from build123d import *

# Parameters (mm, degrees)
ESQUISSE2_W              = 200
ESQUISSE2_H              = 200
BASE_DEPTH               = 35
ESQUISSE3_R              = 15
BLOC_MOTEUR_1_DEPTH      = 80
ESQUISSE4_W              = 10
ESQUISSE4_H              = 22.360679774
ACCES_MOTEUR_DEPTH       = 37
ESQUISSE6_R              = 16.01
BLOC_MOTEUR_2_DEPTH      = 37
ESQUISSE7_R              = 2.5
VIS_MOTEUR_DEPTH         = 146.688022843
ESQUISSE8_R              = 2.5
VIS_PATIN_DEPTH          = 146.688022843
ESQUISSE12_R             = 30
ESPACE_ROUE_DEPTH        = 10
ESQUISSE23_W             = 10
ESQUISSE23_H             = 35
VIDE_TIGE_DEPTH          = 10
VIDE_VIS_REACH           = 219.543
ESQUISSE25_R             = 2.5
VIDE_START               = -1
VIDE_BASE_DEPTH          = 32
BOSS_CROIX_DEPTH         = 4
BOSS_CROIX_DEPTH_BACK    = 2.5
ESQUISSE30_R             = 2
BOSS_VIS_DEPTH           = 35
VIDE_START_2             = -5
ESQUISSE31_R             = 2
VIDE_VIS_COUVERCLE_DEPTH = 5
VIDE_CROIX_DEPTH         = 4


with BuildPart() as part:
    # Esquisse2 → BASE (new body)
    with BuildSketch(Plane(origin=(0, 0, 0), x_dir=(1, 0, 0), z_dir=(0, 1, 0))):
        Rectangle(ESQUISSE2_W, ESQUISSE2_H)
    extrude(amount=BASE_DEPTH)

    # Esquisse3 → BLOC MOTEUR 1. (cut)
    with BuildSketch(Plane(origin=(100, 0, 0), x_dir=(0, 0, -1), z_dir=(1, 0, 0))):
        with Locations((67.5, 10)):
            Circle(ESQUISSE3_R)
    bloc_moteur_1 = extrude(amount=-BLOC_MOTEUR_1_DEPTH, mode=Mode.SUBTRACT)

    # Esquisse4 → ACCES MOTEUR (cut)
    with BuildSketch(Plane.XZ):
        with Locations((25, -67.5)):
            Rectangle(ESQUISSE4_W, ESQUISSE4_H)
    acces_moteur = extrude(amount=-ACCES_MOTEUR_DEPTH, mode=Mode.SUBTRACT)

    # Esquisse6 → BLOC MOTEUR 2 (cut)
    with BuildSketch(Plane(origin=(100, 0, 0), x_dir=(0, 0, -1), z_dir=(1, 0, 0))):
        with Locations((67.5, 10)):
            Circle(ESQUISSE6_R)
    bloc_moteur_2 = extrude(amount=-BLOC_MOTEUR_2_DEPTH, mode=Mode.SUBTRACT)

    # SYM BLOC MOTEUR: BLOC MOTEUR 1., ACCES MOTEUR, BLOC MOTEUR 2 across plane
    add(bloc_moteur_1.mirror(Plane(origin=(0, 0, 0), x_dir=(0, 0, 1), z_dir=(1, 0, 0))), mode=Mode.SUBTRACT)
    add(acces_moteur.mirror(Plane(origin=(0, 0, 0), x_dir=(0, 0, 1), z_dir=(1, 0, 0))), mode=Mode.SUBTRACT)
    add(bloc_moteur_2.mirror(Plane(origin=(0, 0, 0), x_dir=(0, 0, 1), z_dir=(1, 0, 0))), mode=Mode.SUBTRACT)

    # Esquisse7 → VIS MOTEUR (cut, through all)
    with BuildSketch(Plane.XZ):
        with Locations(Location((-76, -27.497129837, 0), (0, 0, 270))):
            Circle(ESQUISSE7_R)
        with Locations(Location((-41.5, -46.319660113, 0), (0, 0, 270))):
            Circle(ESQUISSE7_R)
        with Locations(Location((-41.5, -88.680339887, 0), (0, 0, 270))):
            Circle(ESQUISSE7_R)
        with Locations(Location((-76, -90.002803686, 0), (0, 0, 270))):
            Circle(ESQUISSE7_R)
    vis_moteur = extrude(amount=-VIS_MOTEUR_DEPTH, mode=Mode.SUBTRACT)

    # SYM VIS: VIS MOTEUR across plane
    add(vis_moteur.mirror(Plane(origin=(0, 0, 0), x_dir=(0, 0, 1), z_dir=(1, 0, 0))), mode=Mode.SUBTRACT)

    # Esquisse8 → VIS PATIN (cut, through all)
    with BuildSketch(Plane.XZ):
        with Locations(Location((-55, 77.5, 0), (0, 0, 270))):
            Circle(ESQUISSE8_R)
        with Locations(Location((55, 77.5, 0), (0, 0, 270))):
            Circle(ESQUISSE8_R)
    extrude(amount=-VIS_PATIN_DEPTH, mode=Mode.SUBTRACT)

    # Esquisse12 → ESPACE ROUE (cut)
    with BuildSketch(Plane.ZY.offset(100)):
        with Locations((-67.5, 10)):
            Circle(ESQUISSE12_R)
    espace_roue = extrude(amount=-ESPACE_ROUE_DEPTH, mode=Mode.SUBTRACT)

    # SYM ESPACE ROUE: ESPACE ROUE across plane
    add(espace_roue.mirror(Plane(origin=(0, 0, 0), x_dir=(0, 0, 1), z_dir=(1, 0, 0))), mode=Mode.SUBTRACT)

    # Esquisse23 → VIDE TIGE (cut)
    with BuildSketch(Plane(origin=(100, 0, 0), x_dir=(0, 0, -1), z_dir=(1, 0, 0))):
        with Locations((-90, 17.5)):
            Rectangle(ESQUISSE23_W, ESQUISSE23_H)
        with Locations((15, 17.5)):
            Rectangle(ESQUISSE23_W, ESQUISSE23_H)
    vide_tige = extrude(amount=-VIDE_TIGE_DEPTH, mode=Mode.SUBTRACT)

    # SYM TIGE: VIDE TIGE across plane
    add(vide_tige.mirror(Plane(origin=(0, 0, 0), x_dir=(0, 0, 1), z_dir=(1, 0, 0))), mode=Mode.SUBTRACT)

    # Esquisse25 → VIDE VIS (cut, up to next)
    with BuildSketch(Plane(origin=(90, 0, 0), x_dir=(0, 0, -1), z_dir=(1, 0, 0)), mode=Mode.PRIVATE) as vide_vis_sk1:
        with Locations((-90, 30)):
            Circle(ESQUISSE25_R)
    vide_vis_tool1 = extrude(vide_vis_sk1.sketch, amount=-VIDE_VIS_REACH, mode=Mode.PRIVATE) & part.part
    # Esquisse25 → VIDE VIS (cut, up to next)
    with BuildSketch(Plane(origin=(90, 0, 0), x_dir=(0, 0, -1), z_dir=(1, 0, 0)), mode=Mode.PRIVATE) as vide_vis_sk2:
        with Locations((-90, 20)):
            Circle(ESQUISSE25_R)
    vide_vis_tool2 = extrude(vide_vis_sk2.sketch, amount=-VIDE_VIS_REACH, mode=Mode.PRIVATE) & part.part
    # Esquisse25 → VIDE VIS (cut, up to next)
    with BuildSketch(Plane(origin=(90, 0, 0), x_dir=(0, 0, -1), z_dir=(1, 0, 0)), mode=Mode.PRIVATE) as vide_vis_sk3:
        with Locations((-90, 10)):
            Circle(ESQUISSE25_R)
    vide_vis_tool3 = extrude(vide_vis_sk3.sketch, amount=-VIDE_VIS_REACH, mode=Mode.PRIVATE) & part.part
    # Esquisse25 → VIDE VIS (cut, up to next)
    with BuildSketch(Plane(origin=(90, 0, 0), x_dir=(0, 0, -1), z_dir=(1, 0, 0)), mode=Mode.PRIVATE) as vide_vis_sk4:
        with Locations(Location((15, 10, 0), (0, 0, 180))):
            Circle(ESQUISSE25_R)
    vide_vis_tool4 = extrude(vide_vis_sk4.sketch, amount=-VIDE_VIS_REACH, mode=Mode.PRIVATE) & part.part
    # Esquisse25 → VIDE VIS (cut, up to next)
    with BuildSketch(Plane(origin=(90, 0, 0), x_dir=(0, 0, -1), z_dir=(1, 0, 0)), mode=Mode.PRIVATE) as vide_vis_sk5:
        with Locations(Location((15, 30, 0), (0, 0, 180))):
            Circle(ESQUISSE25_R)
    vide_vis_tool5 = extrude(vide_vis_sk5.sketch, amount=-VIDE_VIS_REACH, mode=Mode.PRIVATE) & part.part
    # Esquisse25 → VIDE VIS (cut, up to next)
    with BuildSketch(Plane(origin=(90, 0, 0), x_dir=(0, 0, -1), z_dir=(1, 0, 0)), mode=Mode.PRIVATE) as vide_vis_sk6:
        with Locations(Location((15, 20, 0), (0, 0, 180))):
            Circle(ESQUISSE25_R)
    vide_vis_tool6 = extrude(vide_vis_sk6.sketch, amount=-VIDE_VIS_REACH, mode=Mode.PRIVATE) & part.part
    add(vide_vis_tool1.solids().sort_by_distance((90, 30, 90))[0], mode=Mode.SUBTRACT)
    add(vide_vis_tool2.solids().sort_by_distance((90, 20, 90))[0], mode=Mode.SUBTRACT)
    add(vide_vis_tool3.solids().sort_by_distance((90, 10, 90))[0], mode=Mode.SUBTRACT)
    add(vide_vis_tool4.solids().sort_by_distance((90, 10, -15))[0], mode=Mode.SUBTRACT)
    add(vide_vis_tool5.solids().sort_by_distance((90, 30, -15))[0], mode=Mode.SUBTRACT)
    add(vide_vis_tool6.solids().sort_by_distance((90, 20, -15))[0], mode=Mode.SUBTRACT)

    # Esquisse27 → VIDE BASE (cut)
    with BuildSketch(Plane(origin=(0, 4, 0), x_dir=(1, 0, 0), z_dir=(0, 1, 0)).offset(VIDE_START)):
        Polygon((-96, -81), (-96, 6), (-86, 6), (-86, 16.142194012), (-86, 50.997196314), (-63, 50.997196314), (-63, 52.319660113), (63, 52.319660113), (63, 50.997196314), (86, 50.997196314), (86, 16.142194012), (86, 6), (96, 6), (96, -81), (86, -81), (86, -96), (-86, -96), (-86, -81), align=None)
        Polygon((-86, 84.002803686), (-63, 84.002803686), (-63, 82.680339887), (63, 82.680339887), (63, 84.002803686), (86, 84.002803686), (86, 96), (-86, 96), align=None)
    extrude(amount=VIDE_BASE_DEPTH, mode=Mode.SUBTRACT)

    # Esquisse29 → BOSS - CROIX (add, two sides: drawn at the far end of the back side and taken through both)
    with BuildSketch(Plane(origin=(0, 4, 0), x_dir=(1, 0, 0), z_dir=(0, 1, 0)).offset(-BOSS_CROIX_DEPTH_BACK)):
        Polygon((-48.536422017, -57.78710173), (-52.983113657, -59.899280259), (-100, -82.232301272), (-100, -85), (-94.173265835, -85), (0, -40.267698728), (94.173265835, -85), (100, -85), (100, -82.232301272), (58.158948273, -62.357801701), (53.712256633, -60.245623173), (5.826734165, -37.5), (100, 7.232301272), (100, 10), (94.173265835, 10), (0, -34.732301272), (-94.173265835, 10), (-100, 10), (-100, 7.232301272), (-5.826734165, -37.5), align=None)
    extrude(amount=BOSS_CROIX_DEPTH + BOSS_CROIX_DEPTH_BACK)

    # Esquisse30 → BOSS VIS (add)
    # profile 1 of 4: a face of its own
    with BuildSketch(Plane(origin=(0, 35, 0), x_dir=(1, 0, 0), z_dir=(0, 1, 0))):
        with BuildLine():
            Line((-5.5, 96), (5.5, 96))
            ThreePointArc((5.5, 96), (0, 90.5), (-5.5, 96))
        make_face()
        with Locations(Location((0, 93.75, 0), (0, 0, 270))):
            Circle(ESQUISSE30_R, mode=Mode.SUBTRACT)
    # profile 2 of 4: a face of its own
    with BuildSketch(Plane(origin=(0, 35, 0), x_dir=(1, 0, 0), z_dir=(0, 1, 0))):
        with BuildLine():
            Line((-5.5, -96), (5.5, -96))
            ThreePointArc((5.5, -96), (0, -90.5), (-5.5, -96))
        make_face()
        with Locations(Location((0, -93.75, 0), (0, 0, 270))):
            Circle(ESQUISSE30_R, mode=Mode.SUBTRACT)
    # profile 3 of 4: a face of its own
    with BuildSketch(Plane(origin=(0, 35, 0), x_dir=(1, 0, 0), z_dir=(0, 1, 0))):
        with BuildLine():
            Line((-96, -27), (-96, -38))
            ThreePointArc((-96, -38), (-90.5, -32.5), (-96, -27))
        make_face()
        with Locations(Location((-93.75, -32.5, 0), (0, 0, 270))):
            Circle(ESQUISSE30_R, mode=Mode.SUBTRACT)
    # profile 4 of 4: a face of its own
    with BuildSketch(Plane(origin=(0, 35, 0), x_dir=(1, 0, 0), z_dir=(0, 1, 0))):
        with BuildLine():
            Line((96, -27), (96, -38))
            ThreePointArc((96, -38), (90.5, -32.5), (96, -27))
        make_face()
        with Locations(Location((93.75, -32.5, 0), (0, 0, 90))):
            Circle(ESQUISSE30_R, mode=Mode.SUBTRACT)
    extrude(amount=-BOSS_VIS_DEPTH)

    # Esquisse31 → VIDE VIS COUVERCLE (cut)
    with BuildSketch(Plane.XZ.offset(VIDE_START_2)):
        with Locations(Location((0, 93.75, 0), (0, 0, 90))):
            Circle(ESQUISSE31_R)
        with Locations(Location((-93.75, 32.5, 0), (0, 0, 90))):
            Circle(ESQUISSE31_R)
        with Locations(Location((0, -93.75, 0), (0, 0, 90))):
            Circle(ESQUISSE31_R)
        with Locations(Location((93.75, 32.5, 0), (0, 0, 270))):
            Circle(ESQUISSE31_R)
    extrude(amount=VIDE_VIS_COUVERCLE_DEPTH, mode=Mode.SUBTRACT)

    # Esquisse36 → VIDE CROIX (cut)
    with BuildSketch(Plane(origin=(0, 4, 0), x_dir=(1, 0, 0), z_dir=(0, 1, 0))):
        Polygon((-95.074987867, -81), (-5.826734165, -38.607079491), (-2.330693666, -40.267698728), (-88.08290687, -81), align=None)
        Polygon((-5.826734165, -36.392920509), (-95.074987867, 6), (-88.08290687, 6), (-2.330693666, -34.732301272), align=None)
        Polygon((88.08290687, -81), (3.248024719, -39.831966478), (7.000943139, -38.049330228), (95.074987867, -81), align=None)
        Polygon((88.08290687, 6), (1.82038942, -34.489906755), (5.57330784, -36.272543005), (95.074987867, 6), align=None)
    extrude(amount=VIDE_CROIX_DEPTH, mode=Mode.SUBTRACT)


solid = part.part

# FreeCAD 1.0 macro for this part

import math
import FreeCAD as App
import Part
import Sketcher
Q = App.Units.Quantity


def add_polygon(sketch, points):
    """Adds a closed chain of lines whose ends are joined by coincident constraints."""
    first, n = sketch.GeometryCount, len(points)
    for a, b in zip(points, points[1:] + points[:1]):
        sketch.addGeometry(Part.LineSegment(App.Vector(*a, 0), App.Vector(*b, 0)), False)
    for i in range(n):
        sketch.addConstraint(Sketcher.Constraint("Coincident", first + i, 2, first + (i + 1) % n, 1))

doc = App.newDocument("Part")
body = doc.addObject("PartDesign::Body", "Body")

# Sketch on XZ plane
sketch1 = body.newObject("Sketcher::SketchObject", "Sketch")
sketch1.AttachmentSupport = (doc.getObject("XZ_Plane"), [""])
sketch1.MapMode = "FlatFace"
add_polygon(sketch1, [(-100, -100), (-100, 100), (100, 100), (100, -100)])  # lines 0-3
sketch1.addConstraint(Sketcher.Constraint("Vertical", 0))
sketch1.addConstraint(Sketcher.Constraint("Horizontal", 1))
sketch1.addConstraint(Sketcher.Constraint("Vertical", 2))
sketch1.addConstraint(Sketcher.Constraint("Horizontal", 3))
sketch1.addConstraint(Sketcher.Constraint("Symmetric", 0, 2, 2, 2, -1, 1))
sketch1.addConstraint(Sketcher.Constraint("Equal", 3, 0))
sketch1.addConstraint(Sketcher.Constraint("DistanceX", 1, 1, 1, 2, Q("200 mm")))
pad1 = body.newObject("PartDesign::Pad", "Pad")
pad1.Profile = sketch1
pad1.Length = 35
pad1.Reversed = True

# Sketch on YZ plane
sketch2 = body.newObject("Sketcher::SketchObject", "Sketch001")
sketch2.AttachmentSupport = (doc.getObject("YZ_Plane"), [""])
sketch2.MapMode = "FlatFace"
sketch2.AttachmentOffset = App.Placement(App.Vector(0, 0, 100), App.Rotation())
sketch2.addGeometry(Part.Circle(App.Vector(10, -68, 0), App.Vector(0, 0, 1), 15), False)
sketch2.addConstraint(Sketcher.Constraint("Diameter", 0, Q("30 mm")))
sketch2.addConstraint(Sketcher.Constraint("DistanceX", -1, 1, 0, 3, Q("10 mm")))
sketch2.addConstraint(Sketcher.Constraint("DistanceY", 0, 3, -1, 1, Q("67.5 mm")))
pocket1 = body.newObject("PartDesign::Pocket", "Pocket")
pocket1.Profile = sketch2
pocket1.Length = 80

# Sketch on XZ plane
sketch3 = body.newObject("Sketcher::SketchObject", "Sketch002")
sketch3.AttachmentSupport = (doc.getObject("XZ_Plane"), [""])
sketch3.MapMode = "FlatFace"
add_polygon(sketch3, [(20, -56), (20, -79), (30, -79), (30, -56)])  # lines 0-3
sketch3.addConstraint(Sketcher.Constraint("Vertical", 0))
sketch3.addConstraint(Sketcher.Constraint("Horizontal", 1))
sketch3.addConstraint(Sketcher.Constraint("Vertical", 2))
sketch3.addConstraint(Sketcher.Constraint("Horizontal", 3))
sketch3.addConstraint(Sketcher.Constraint("DistanceX", 1, 1, 1, 2, Q("10 mm")))
sketch3.addConstraint(Sketcher.Constraint("DistanceX", -1, 1, 0, 2, Q("20 mm")))
sketch3.addConstraint(Sketcher.Constraint("DistanceY", 0, 2, 0, 1, Q("22.36068 mm")))
sketch3.addConstraint(Sketcher.Constraint("DistanceY", 0, 2, -1, 1, Q("78.68034 mm")))
pocket2 = body.newObject("PartDesign::Pocket", "Pocket001")
pocket2.Profile = sketch3
pocket2.Length = 37

# Sketch on YZ plane
sketch4 = body.newObject("Sketcher::SketchObject", "Sketch003")
sketch4.AttachmentSupport = (doc.getObject("YZ_Plane"), [""])
sketch4.MapMode = "FlatFace"
sketch4.AttachmentOffset = App.Placement(App.Vector(0, 0, 100), App.Rotation())
sketch4.addGeometry(Part.Circle(App.Vector(10, -68, 0), App.Vector(0, 0, 1), 16), False)
sketch4.addConstraint(Sketcher.Constraint("Diameter", 0, Q("32.02 mm")))
sketch4.addConstraint(Sketcher.Constraint("DistanceX", -1, 1, 0, 3, Q("10 mm")))
sketch4.addConstraint(Sketcher.Constraint("DistanceY", 0, 3, -1, 1, Q("67.5 mm")))
pocket3 = body.newObject("PartDesign::Pocket", "Pocket002")
pocket3.Profile = sketch4
pocket3.Length = 37
doc.recompute()

mirrored = body.newObject("PartDesign::Mirrored", "Mirrored")
mirrored.Originals = [pocket1, pocket2, pocket3]
mirrored.MirrorPlane = (doc.getObject("YZ_Plane"), [""])
body.Tip = mirrored

# Sketch on XZ plane
sketch5 = body.newObject("Sketcher::SketchObject", "Sketch004")
sketch5.AttachmentSupport = (doc.getObject("XZ_Plane"), [""])
sketch5.MapMode = "FlatFace"
sketch5.addGeometry(Part.Circle(App.Vector(-76, -27.5, 0), App.Vector(0, 0, 1), 2.5), False)
sketch5.addGeometry(Part.Circle(App.Vector(-41.5, -46.3, 0), App.Vector(0, 0, 1), 2.5), False)
sketch5.addGeometry(Part.Circle(App.Vector(-41.5, -88.7, 0), App.Vector(0, 0, 1), 2.5), False)
sketch5.addGeometry(Part.Circle(App.Vector(-76, -90, 0), App.Vector(0, 0, 1), 2.5), False)
sketch5.addConstraint(Sketcher.Constraint("Equal", 0, 1))
sketch5.addConstraint(Sketcher.Constraint("Equal", 1, 2))
sketch5.addConstraint(Sketcher.Constraint("Equal", 2, 3))
sketch5.addConstraint(Sketcher.Constraint("Vertical", 1, 3, 2, 3))
sketch5.addConstraint(Sketcher.Constraint("Vertical", 0, 3, 3, 3))
sketch5.addConstraint(Sketcher.Constraint("Diameter", 0, Q("5 mm")))
sketch5.addConstraint(Sketcher.Constraint("DistanceX", 0, 3, -1, 1, Q("76 mm")))
sketch5.addConstraint(Sketcher.Constraint("DistanceX", 1, 3, -1, 1, Q("41.5 mm")))
sketch5.addConstraint(Sketcher.Constraint("DistanceY", 0, 3, -1, 1, Q("27.49713 mm")))
sketch5.addConstraint(Sketcher.Constraint("DistanceY", 1, 3, -1, 1, Q("46.31966 mm")))
sketch5.addConstraint(Sketcher.Constraint("DistanceY", 2, 3, -1, 1, Q("88.68034 mm")))
sketch5.addConstraint(Sketcher.Constraint("DistanceY", 3, 3, -1, 1, Q("90.002804 mm")))
pocket4 = body.newObject("PartDesign::Pocket", "Pocket003")
pocket4.Profile = sketch5
pocket4.Type = "ThroughAll"
doc.recompute()

mirrored2 = body.newObject("PartDesign::Mirrored", "Mirrored001")
mirrored2.Originals = [pocket4]
mirrored2.MirrorPlane = (doc.getObject("YZ_Plane"), [""])
body.Tip = mirrored2

# Sketch on XZ plane
sketch6 = body.newObject("Sketcher::SketchObject", "Sketch005")
sketch6.AttachmentSupport = (doc.getObject("XZ_Plane"), [""])
sketch6.MapMode = "FlatFace"
sketch6.addGeometry(Part.Circle(App.Vector(-55, 77.5, 0), App.Vector(0, 0, 1), 2.5), False)
sketch6.addGeometry(Part.Circle(App.Vector(55, 77.5, 0), App.Vector(0, 0, 1), 2.5), False)
sketch6.addConstraint(Sketcher.Constraint("Equal", 0, 1))
sketch6.addConstraint(Sketcher.Constraint("Symmetric", 0, 3, 1, 3, -2))
sketch6.addConstraint(Sketcher.Constraint("Diameter", 0, Q("5 mm")))
sketch6.addConstraint(Sketcher.Constraint("DistanceX", 0, 3, -1, 1, Q("55 mm")))
sketch6.addConstraint(Sketcher.Constraint("DistanceY", -1, 1, 0, 3, Q("77.5 mm")))
pocket5 = body.newObject("PartDesign::Pocket", "Pocket004")
pocket5.Profile = sketch6
pocket5.Type = "ThroughAll"

# Sketch on YZ plane
sketch7 = body.newObject("Sketcher::SketchObject", "Sketch006")
sketch7.AttachmentSupport = (doc.getObject("YZ_Plane"), [""])
sketch7.MapMode = "FlatFace"
sketch7.AttachmentOffset = App.Placement(App.Vector(0, 0, -100), App.Rotation())
sketch7.addGeometry(Part.Circle(App.Vector(10, -68, 0), App.Vector(0, 0, 1), 30), False)
sketch7.addConstraint(Sketcher.Constraint("Diameter", 0, Q("60 mm")))
sketch7.addConstraint(Sketcher.Constraint("DistanceX", -1, 1, 0, 3, Q("10 mm")))
sketch7.addConstraint(Sketcher.Constraint("DistanceY", 0, 3, -1, 1, Q("67.5 mm")))
pocket6 = body.newObject("PartDesign::Pocket", "Pocket005")
pocket6.Profile = sketch7
pocket6.Length = 10
pocket6.Reversed = True
doc.recompute()

mirrored3 = body.newObject("PartDesign::Mirrored", "Mirrored002")
mirrored3.Originals = [pocket6]
mirrored3.MirrorPlane = (doc.getObject("YZ_Plane"), [""])
body.Tip = mirrored3

# Sketch on YZ plane
sketch8 = body.newObject("Sketcher::SketchObject", "Sketch007")
sketch8.AttachmentSupport = (doc.getObject("YZ_Plane"), [""])
sketch8.MapMode = "FlatFace"
sketch8.AttachmentOffset = App.Placement(App.Vector(0, 0, 100), App.Rotation())
add_polygon(sketch8, [(35, 95), (0, 95), (0, 85), (35, 85)])  # lines 0-3
add_polygon(sketch8, [(35, -10), (0, -10), (0, -20), (35, -20)])  # lines 4-7
sketch8.addConstraint(Sketcher.Constraint("Horizontal", 0))
sketch8.addConstraint(Sketcher.Constraint("Vertical", 1))
sketch8.addConstraint(Sketcher.Constraint("Horizontal", 2))
sketch8.addConstraint(Sketcher.Constraint("Vertical", 3))
sketch8.addConstraint(Sketcher.Constraint("Horizontal", 4))
sketch8.addConstraint(Sketcher.Constraint("Vertical", 5))
sketch8.addConstraint(Sketcher.Constraint("Horizontal", 6))
sketch8.addConstraint(Sketcher.Constraint("Vertical", 7))
sketch8.addConstraint(Sketcher.Constraint("PointOnObject", 0, 2, -2))
sketch8.addConstraint(Sketcher.Constraint("PointOnObject", 4, 2, -2))
sketch8.addConstraint(Sketcher.Constraint("Vertical", 3, 2, 6, 2))
sketch8.addConstraint(Sketcher.Constraint("Equal", 3, 5))
sketch8.addConstraint(Sketcher.Constraint("DistanceX", 0, 2, 0, 1, Q("35 mm")))
sketch8.addConstraint(Sketcher.Constraint("DistanceY", 1, 2, 1, 1, Q("10 mm")))
sketch8.addConstraint(Sketcher.Constraint("DistanceY", -1, 1, 0, 2, Q("95 mm")))
sketch8.addConstraint(Sketcher.Constraint("DistanceY", 4, 2, -1, 1, Q("10 mm")))
pocket7 = body.newObject("PartDesign::Pocket", "Pocket006")
pocket7.Profile = sketch8
pocket7.Length = 10
doc.recompute()

mirrored4 = body.newObject("PartDesign::Mirrored", "Mirrored003")
mirrored4.Originals = [pocket7]
mirrored4.MirrorPlane = (doc.getObject("YZ_Plane"), [""])
body.Tip = mirrored4

# Sketch on YZ plane
sketch9 = body.newObject("Sketcher::SketchObject", "Sketch008")
sketch9.AttachmentSupport = (doc.getObject("YZ_Plane"), [""])
sketch9.MapMode = "FlatFace"
sketch9.AttachmentOffset = App.Placement(App.Vector(0, 0, 90), App.Rotation())
sketch9.addGeometry(Part.Circle(App.Vector(30, 90, 0), App.Vector(0, 0, 1), 2.5), False)
sketch9.addConstraint(Sketcher.Constraint("Diameter", 0, Q("5 mm")))
sketch9.addConstraint(Sketcher.Constraint("DistanceX", -1, 1, 0, 3, Q("30 mm")))
sketch9.addConstraint(Sketcher.Constraint("DistanceY", -1, 1, 0, 3, Q("90 mm")))
pocket8 = body.newObject("PartDesign::Pocket", "Pocket007")
pocket8.Profile = sketch9
pocket8.Type = "UpToFirst"

# Sketch on YZ plane
sketch10 = body.newObject("Sketcher::SketchObject", "Sketch009")
sketch10.AttachmentSupport = (doc.getObject("YZ_Plane"), [""])
sketch10.MapMode = "FlatFace"
sketch10.AttachmentOffset = App.Placement(App.Vector(0, 0, 90), App.Rotation())
sketch10.addGeometry(Part.Circle(App.Vector(20, 90, 0), App.Vector(0, 0, 1), 2.5), False)
sketch10.addConstraint(Sketcher.Constraint("Diameter", 0, Q("5 mm")))
sketch10.addConstraint(Sketcher.Constraint("DistanceX", -1, 1, 0, 3, Q("20 mm")))
sketch10.addConstraint(Sketcher.Constraint("DistanceY", -1, 1, 0, 3, Q("90 mm")))
pocket9 = body.newObject("PartDesign::Pocket", "Pocket008")
pocket9.Profile = sketch10
pocket9.Type = "UpToFirst"

# Sketch on YZ plane
sketch11 = body.newObject("Sketcher::SketchObject", "Sketch010")
sketch11.AttachmentSupport = (doc.getObject("YZ_Plane"), [""])
sketch11.MapMode = "FlatFace"
sketch11.AttachmentOffset = App.Placement(App.Vector(0, 0, 90), App.Rotation())
sketch11.addGeometry(Part.Circle(App.Vector(10, 90, 0), App.Vector(0, 0, 1), 2.5), False)
sketch11.addConstraint(Sketcher.Constraint("Diameter", 0, Q("5 mm")))
sketch11.addConstraint(Sketcher.Constraint("DistanceX", -1, 1, 0, 3, Q("10 mm")))
sketch11.addConstraint(Sketcher.Constraint("DistanceY", -1, 1, 0, 3, Q("90 mm")))
pocket10 = body.newObject("PartDesign::Pocket", "Pocket009")
pocket10.Profile = sketch11
pocket10.Type = "UpToFirst"

# Sketch on YZ plane
sketch12 = body.newObject("Sketcher::SketchObject", "Sketch011")
sketch12.AttachmentSupport = (doc.getObject("YZ_Plane"), [""])
sketch12.MapMode = "FlatFace"
sketch12.AttachmentOffset = App.Placement(App.Vector(0, 0, 90), App.Rotation())
sketch12.addGeometry(Part.Circle(App.Vector(10, -15, 0), App.Vector(0, 0, 1), 2.5), False)
sketch12.addConstraint(Sketcher.Constraint("Diameter", 0, Q("5 mm")))
sketch12.addConstraint(Sketcher.Constraint("DistanceX", -1, 1, 0, 3, Q("10 mm")))
sketch12.addConstraint(Sketcher.Constraint("DistanceY", 0, 3, -1, 1, Q("15 mm")))
pocket11 = body.newObject("PartDesign::Pocket", "Pocket010")
pocket11.Profile = sketch12
pocket11.Type = "UpToFirst"

# Sketch on YZ plane
sketch13 = body.newObject("Sketcher::SketchObject", "Sketch012")
sketch13.AttachmentSupport = (doc.getObject("YZ_Plane"), [""])
sketch13.MapMode = "FlatFace"
sketch13.AttachmentOffset = App.Placement(App.Vector(0, 0, 90), App.Rotation())
sketch13.addGeometry(Part.Circle(App.Vector(30, -15, 0), App.Vector(0, 0, 1), 2.5), False)
sketch13.addConstraint(Sketcher.Constraint("Diameter", 0, Q("5 mm")))
sketch13.addConstraint(Sketcher.Constraint("DistanceX", -1, 1, 0, 3, Q("30 mm")))
sketch13.addConstraint(Sketcher.Constraint("DistanceY", 0, 3, -1, 1, Q("15 mm")))
pocket12 = body.newObject("PartDesign::Pocket", "Pocket011")
pocket12.Profile = sketch13
pocket12.Type = "UpToFirst"

# Sketch on YZ plane
sketch14 = body.newObject("Sketcher::SketchObject", "Sketch013")
sketch14.AttachmentSupport = (doc.getObject("YZ_Plane"), [""])
sketch14.MapMode = "FlatFace"
sketch14.AttachmentOffset = App.Placement(App.Vector(0, 0, 90), App.Rotation())
sketch14.addGeometry(Part.Circle(App.Vector(20, -15, 0), App.Vector(0, 0, 1), 2.5), False)
sketch14.addConstraint(Sketcher.Constraint("Diameter", 0, Q("5 mm")))
sketch14.addConstraint(Sketcher.Constraint("DistanceX", -1, 1, 0, 3, Q("20 mm")))
sketch14.addConstraint(Sketcher.Constraint("DistanceY", 0, 3, -1, 1, Q("15 mm")))
pocket13 = body.newObject("PartDesign::Pocket", "Pocket012")
pocket13.Profile = sketch14
pocket13.Type = "UpToFirst"

# Sketch on XZ plane
sketch15 = body.newObject("Sketcher::SketchObject", "Sketch014")
sketch15.AttachmentSupport = (doc.getObject("XZ_Plane"), [""])
sketch15.MapMode = "FlatFace"
sketch15.AttachmentOffset = App.Placement(App.Vector(0, 0, -3), App.Rotation())
add_polygon(sketch15, [(-96, -6), (-96, 81), (-86, 81), (-86, 96), (86, 96), (86, 81), (96, 81), (96, -6), (86, -6), (86, -51), (63, -51), (63, -52.3), (-63, -52.3), (-63, -51), (-86, -51), (-86, -6)])  # lines 0-15
add_polygon(sketch15, [(-86, -84), (-63, -84), (-63, -82.7), (63, -82.7), (63, -84), (86, -84), (86, -96), (-86, -96)])  # lines 16-23
sketch15.addConstraint(Sketcher.Constraint("Vertical", 0))
sketch15.addConstraint(Sketcher.Constraint("Horizontal", 1))
sketch15.addConstraint(Sketcher.Constraint("Vertical", 2))
sketch15.addConstraint(Sketcher.Constraint("Horizontal", 3))
sketch15.addConstraint(Sketcher.Constraint("Vertical", 4))
sketch15.addConstraint(Sketcher.Constraint("Horizontal", 5))
sketch15.addConstraint(Sketcher.Constraint("Vertical", 6))
sketch15.addConstraint(Sketcher.Constraint("Horizontal", 7))
sketch15.addConstraint(Sketcher.Constraint("Vertical", 8))
sketch15.addConstraint(Sketcher.Constraint("Horizontal", 9))
sketch15.addConstraint(Sketcher.Constraint("Vertical", 10))
sketch15.addConstraint(Sketcher.Constraint("Horizontal", 11))
sketch15.addConstraint(Sketcher.Constraint("Vertical", 12))
sketch15.addConstraint(Sketcher.Constraint("Horizontal", 13))
sketch15.addConstraint(Sketcher.Constraint("Vertical", 14))
sketch15.addConstraint(Sketcher.Constraint("Horizontal", 15))
sketch15.addConstraint(Sketcher.Constraint("Horizontal", 16))
sketch15.addConstraint(Sketcher.Constraint("Vertical", 17))
sketch15.addConstraint(Sketcher.Constraint("Horizontal", 18))
sketch15.addConstraint(Sketcher.Constraint("Vertical", 19))
sketch15.addConstraint(Sketcher.Constraint("Horizontal", 20))
sketch15.addConstraint(Sketcher.Constraint("Vertical", 21))
sketch15.addConstraint(Sketcher.Constraint("Horizontal", 22))
sketch15.addConstraint(Sketcher.Constraint("Vertical", 23))
sketch15.addConstraint(Sketcher.Constraint("Symmetric", 2, 2, 21, 2, -1, 1))
sketch15.addConstraint(Sketcher.Constraint("Symmetric", 1, 2, 4, 2, -2))
sketch15.addConstraint(Sketcher.Constraint("Symmetric", 9, 2, 12, 2, -2))
sketch15.addConstraint(Sketcher.Constraint("Symmetric", 7, 2, 14, 2, -2))
sketch15.addConstraint(Sketcher.Constraint("Symmetric", 16, 2, 19, 2, -2))
sketch15.addConstraint(Sketcher.Constraint("Vertical", 4, 2, 7, 2))
sketch15.addConstraint(Sketcher.Constraint("Vertical", 12, 2, 16, 2))
sketch15.addConstraint(Sketcher.Constraint("Vertical", 14, 2, 22, 2))
sketch15.addConstraint(Sketcher.Constraint("Equal", 1, 5))
sketch15.addConstraint(Sketcher.Constraint("Equal", 12, 17))
sketch15.addConstraint(Sketcher.Constraint("DistanceX", 1, 1, 1, 2, Q("10 mm")))
sketch15.addConstraint(Sketcher.Constraint("DistanceX", 3, 1, 3, 2, Q("172 mm")))
sketch15.addConstraint(Sketcher.Constraint("DistanceX", 9, 2, 9, 1, Q("23 mm")))
sketch15.addConstraint(Sketcher.Constraint("DistanceY", 0, 1, 0, 2, Q("87 mm")))
sketch15.addConstraint(Sketcher.Constraint("DistanceY", 2, 1, 2, 2, Q("15 mm")))
sketch15.addConstraint(Sketcher.Constraint("DistanceY", -1, 1, 0, 2, Q("81 mm")))
sketch15.addConstraint(Sketcher.Constraint("DistanceY", 8, 2, 8, 1, Q("44.997196 mm")))
sketch15.addConstraint(Sketcher.Constraint("DistanceY", 10, 2, 10, 1, Q("1.322464 mm")))
sketch15.addConstraint(Sketcher.Constraint("DistanceY", 21, 2, 21, 1, Q("11.997196 mm")))
pocket14 = body.newObject("PartDesign::Pocket", "Pocket013")
pocket14.Profile = sketch15
pocket14.Length = 32

# Sketch on XZ plane
sketch16 = body.newObject("Sketcher::SketchObject", "Sketch015")
sketch16.AttachmentSupport = (doc.getObject("XZ_Plane"), [""])
sketch16.MapMode = "FlatFace"
sketch16.AttachmentOffset = App.Placement(App.Vector(0, 0, -4), App.Rotation())
add_polygon(sketch16, [(-48.5, 57.8), (-53, 59.9), (-100, 82.2), (-100, 85), (-94.2, 85), (0, 40.3), (94.2, 85), (100, 85), (100, 82.2), (58.2, 62.4), (53.7, 60.2), (5.8, 37.5), (100, -7.2), (100, -10), (94.2, -10), (0, 34.7), (-94.2, -10), (-100, -10), (-100, -7.2), (-5.8, 37.5)])  # lines 0-19
sketch16.addConstraint(Sketcher.Constraint("Vertical", 2))
sketch16.addConstraint(Sketcher.Constraint("Horizontal", 3))
sketch16.addConstraint(Sketcher.Constraint("Horizontal", 6))
sketch16.addConstraint(Sketcher.Constraint("Vertical", 7))
sketch16.addConstraint(Sketcher.Constraint("Vertical", 12))
sketch16.addConstraint(Sketcher.Constraint("Horizontal", 13))
sketch16.addConstraint(Sketcher.Constraint("Horizontal", 16))
sketch16.addConstraint(Sketcher.Constraint("Vertical", 17))
sketch16.addConstraint(Sketcher.Constraint("Symmetric", 3, 2, 5, 2, -2))
sketch16.addConstraint(Sketcher.Constraint("Symmetric", 1, 2, 7, 2, -2))
sketch16.addConstraint(Sketcher.Constraint("Symmetric", 13, 2, 15, 2, -2))
sketch16.addConstraint(Sketcher.Constraint("Symmetric", 11, 2, 17, 2, -2))
sketch16.addConstraint(Sketcher.Constraint("Symmetric", 10, 2, 18, 2, -2))
sketch16.addConstraint(Sketcher.Constraint("PointOnObject", 4, 2, -2))
sketch16.addConstraint(Sketcher.Constraint("PointOnObject", 14, 2, -2))
sketch16.addConstraint(Sketcher.Constraint("Parallel", 0, 1))
sketch16.addConstraint(Sketcher.Constraint("Parallel", 1, 4))
sketch16.addConstraint(Sketcher.Constraint("Parallel", 5, 8))
sketch16.addConstraint(Sketcher.Constraint("Parallel", 8, 9))
sketch16.addConstraint(Sketcher.Constraint("Parallel", 9, 10))
sketch16.addConstraint(Sketcher.Constraint("Parallel", 4, 11))
sketch16.addConstraint(Sketcher.Constraint("Parallel", 11, 14))
sketch16.addConstraint(Sketcher.Constraint("Vertical", 7, 2, 11, 2))
sketch16.addConstraint(Sketcher.Constraint("Vertical", 5, 2, 13, 2))
sketch16.addConstraint(Sketcher.Constraint("Equal", 7, 12))
sketch16.addConstraint(Sketcher.Constraint("Equal", 0, 9))
sketch16.addConstraint(Sketcher.Constraint("Equal", 5, 11))
sketch16.addConstraint(Sketcher.Constraint("DistanceX", 1, 2, -1, 1, Q("100 mm")))
sketch16.addConstraint(Sketcher.Constraint("DistanceY", -1, 1, 2, 2, Q("85 mm")))
sketch16.addConstraint(Sketcher.Constraint("DistanceY", 12, 2, -1, 1, Q("10 mm")))
sketch16.addConstraint(Sketcher.Constraint("DistanceY", 2, 1, 2, 2, Q("2.767699 mm")))
sketch16.addConstraint(Sketcher.Constraint("DistanceY", -1, 1, 8, 2, Q("62.357802 mm")))
sketch16.addConstraint(Sketcher.Constraint("DistanceY", -1, 1, 19, 2, Q("57.787102 mm")))
sketch16.addConstraint(Sketcher.Constraint("Distance", 0, Q("4.922841 mm")))
sketch16.addConstraint(Sketcher.Constraint("Distance", 1, Q("52.051431 mm")))
pad2 = body.newObject("PartDesign::Pad", "Pad001")
pad2.Profile = sketch16
pad2.Type = "TwoLengths"
pad2.Length = 4
pad2.Length2 = 2.5
pad2.Reversed = True

# Sketch on XZ plane
sketch17 = body.newObject("Sketcher::SketchObject", "Sketch016")
sketch17.AttachmentSupport = (doc.getObject("XZ_Plane"), [""])
sketch17.MapMode = "FlatFace"
sketch17.AttachmentOffset = App.Placement(App.Vector(0, 0, -35), App.Rotation())
sketch17.addGeometry(Part.LineSegment(App.Vector(5.5, -96, 0), App.Vector(-5.5, -96, 0)), False)
sketch17.addGeometry(Part.ArcOfCircle(Part.Circle(App.Vector(0, -96, 0), App.Vector(0, 0, 1), 5.5), math.radians(0), math.radians(180)), False)
sketch17.addGeometry(Part.Circle(App.Vector(0, -93.8, 0), App.Vector(0, 0, 1), 2), False)
sketch17.addGeometry(Part.LineSegment(App.Vector(-5.5, 96, 0), App.Vector(5.5, 96, 0)), False)
sketch17.addGeometry(Part.ArcOfCircle(Part.Circle(App.Vector(0, 96, 0), App.Vector(0, 0, 1), 5.5), math.radians(180), math.radians(360)), False)
sketch17.addGeometry(Part.Circle(App.Vector(0, 93.8, 0), App.Vector(0, 0, 1), 2), False)
sketch17.addGeometry(Part.LineSegment(App.Vector(-96, 27, 0), App.Vector(-96, 38, 0)), False)
sketch17.addGeometry(Part.ArcOfCircle(Part.Circle(App.Vector(-96, 32.5, 0), App.Vector(0, 0, 1), 5.5), math.radians(-90), math.radians(90)), False)
sketch17.addGeometry(Part.Circle(App.Vector(-93.8, 32.5, 0), App.Vector(0, 0, 1), 2), False)
sketch17.addGeometry(Part.LineSegment(App.Vector(96, 38, 0), App.Vector(96, 27, 0)), False)
sketch17.addGeometry(Part.ArcOfCircle(Part.Circle(App.Vector(96, 32.5, 0), App.Vector(0, 0, 1), 5.5), math.radians(90), math.radians(270)), False)
sketch17.addGeometry(Part.Circle(App.Vector(93.8, 32.5, 0), App.Vector(0, 0, 1), 2), False)
sketch17.addConstraint(Sketcher.Constraint("Coincident", 0, 1, 1, 1))
sketch17.addConstraint(Sketcher.Constraint("Coincident", 1, 2, 0, 2))
sketch17.addConstraint(Sketcher.Constraint("Coincident", 3, 1, 4, 1))
sketch17.addConstraint(Sketcher.Constraint("Coincident", 4, 2, 3, 2))
sketch17.addConstraint(Sketcher.Constraint("Coincident", 6, 1, 7, 1))
sketch17.addConstraint(Sketcher.Constraint("Coincident", 7, 2, 6, 2))
sketch17.addConstraint(Sketcher.Constraint("Coincident", 9, 1, 10, 1))
sketch17.addConstraint(Sketcher.Constraint("Coincident", 10, 2, 9, 2))
sketch17.addConstraint(Sketcher.Constraint("Horizontal", 0))
sketch17.addConstraint(Sketcher.Constraint("Horizontal", 3))
sketch17.addConstraint(Sketcher.Constraint("Vertical", 6))
sketch17.addConstraint(Sketcher.Constraint("Vertical", 9))
sketch17.addConstraint(Sketcher.Constraint("Equal", 1, 4))
sketch17.addConstraint(Sketcher.Constraint("Equal", 2, 5))
sketch17.addConstraint(Sketcher.Constraint("Equal", 4, 7))
sketch17.addConstraint(Sketcher.Constraint("Equal", 5, 8))
sketch17.addConstraint(Sketcher.Constraint("Equal", 7, 10))
sketch17.addConstraint(Sketcher.Constraint("Equal", 8, 11))
sketch17.addConstraint(Sketcher.Constraint("Symmetric", 1, 3, 4, 3, -1, 1))
sketch17.addConstraint(Sketcher.Constraint("Symmetric", 2, 3, 5, 3, -1, 1))
sketch17.addConstraint(Sketcher.Constraint("Symmetric", 7, 3, 10, 3, -2))
sketch17.addConstraint(Sketcher.Constraint("Symmetric", 8, 3, 11, 3, -2))
sketch17.addConstraint(Sketcher.Constraint("Symmetric", 1, 2, 3, 1, -1))
sketch17.addConstraint(Sketcher.Constraint("PointOnObject", 2, 3, -2))
sketch17.addConstraint(Sketcher.Constraint("Horizontal", 7, 3, 8, 3))
sketch17.addConstraint(Sketcher.Constraint("Horizontal", 1, 3, 0, 1))
sketch17.addConstraint(Sketcher.Constraint("Vertical", 7, 3, 6, 1))
sketch17.addConstraint(Sketcher.Constraint("Vertical", 10, 3, 9, 1))
sketch17.addConstraint(Sketcher.Constraint("Diameter", 2, Q("4 mm")))
sketch17.addConstraint(Sketcher.Constraint("Radius", 1, Q("5.5 mm")))
sketch17.addConstraint(Sketcher.Constraint("DistanceY", 1, 3, -1, 1, Q("96 mm")))
sketch17.addConstraint(Sketcher.Constraint("DistanceX", 7, 3, -1, 1, Q("96 mm")))
sketch17.addConstraint(Sketcher.Constraint("DistanceY", -1, 1, 6, 1, Q("27 mm")))
sketch17.addConstraint(Sketcher.Constraint("DistanceY", 2, 3, 5, 3, Q("187.5 mm")))
sketch17.addConstraint(Sketcher.Constraint("DistanceX", 8, 3, -1, 1, Q("93.75 mm")))
pad3 = body.newObject("PartDesign::Pad", "Pad002")
pad3.Profile = sketch17
pad3.Length = 35

# Sketch on XZ plane
sketch18 = body.newObject("Sketcher::SketchObject", "Sketch017")
sketch18.AttachmentSupport = (doc.getObject("XZ_Plane"), [""])
sketch18.MapMode = "FlatFace"
sketch18.AttachmentOffset = App.Placement(App.Vector(0, 0, -5), App.Rotation())
sketch18.addGeometry(Part.Circle(App.Vector(0, 93.8, 0), App.Vector(0, 0, 1), 2), False)
sketch18.addGeometry(Part.Circle(App.Vector(-93.8, 32.5, 0), App.Vector(0, 0, 1), 2), False)
sketch18.addGeometry(Part.Circle(App.Vector(0, -93.8, 0), App.Vector(0, 0, 1), 2), False)
sketch18.addGeometry(Part.Circle(App.Vector(93.8, 32.5, 0), App.Vector(0, 0, 1), 2), False)
sketch18.addConstraint(Sketcher.Constraint("Equal", 0, 1))
sketch18.addConstraint(Sketcher.Constraint("Equal", 1, 2))
sketch18.addConstraint(Sketcher.Constraint("Equal", 2, 3))
sketch18.addConstraint(Sketcher.Constraint("Symmetric", 0, 3, 2, 3, -1, 1))
sketch18.addConstraint(Sketcher.Constraint("Symmetric", 1, 3, 3, 3, -2))
sketch18.addConstraint(Sketcher.Constraint("PointOnObject", 0, 3, -2))
sketch18.addConstraint(Sketcher.Constraint("Diameter", 0, Q("4 mm")))
sketch18.addConstraint(Sketcher.Constraint("DistanceY", -1, 1, 1, 3, Q("32.5 mm")))
sketch18.addConstraint(Sketcher.Constraint("DistanceY", 2, 3, 0, 3, Q("187.5 mm")))
sketch18.addConstraint(Sketcher.Constraint("DistanceX", 1, 3, 3, 3, Q("187.5 mm")))
pocket15 = body.newObject("PartDesign::Pocket", "Pocket014")
pocket15.Profile = sketch18
pocket15.Length = 5
pocket15.Reversed = True

# Sketch on XZ plane
sketch19 = body.newObject("Sketcher::SketchObject", "Sketch018")
sketch19.AttachmentSupport = (doc.getObject("XZ_Plane"), [""])
sketch19.MapMode = "FlatFace"
sketch19.AttachmentOffset = App.Placement(App.Vector(0, 0, -4), App.Rotation())
add_polygon(sketch19, [(-5.8, 38.6), (-95.1, 81), (-88.1, 81), (-2.3, 40.3)])  # lines 0-3
add_polygon(sketch19, [(-95.1, -6), (-5.8, 36.4), (-2.3, 34.7), (-88.1, -6)])  # lines 4-7
add_polygon(sketch19, [(3.2, 39.8), (88.1, 81), (95.1, 81), (7, 38)])  # lines 8-11
add_polygon(sketch19, [(88.1, -6), (1.8, 34.5), (5.6, 36.3), (95.1, -6)])  # lines 12-15
sketch19.addConstraint(Sketcher.Constraint("Horizontal", 1))
sketch19.addConstraint(Sketcher.Constraint("Horizontal", 7))
sketch19.addConstraint(Sketcher.Constraint("Horizontal", 9))
sketch19.addConstraint(Sketcher.Constraint("Horizontal", 15))
sketch19.addConstraint(Sketcher.Constraint("Symmetric", 1, 2, 8, 2, -2))
sketch19.addConstraint(Sketcher.Constraint("Symmetric", 7, 2, 14, 2, -2))
sketch19.addConstraint(Sketcher.Constraint("Parallel", 0, 2))
sketch19.addConstraint(Sketcher.Constraint("Parallel", 3, 4))
sketch19.addConstraint(Sketcher.Constraint("Parallel", 2, 5))
sketch19.addConstraint(Sketcher.Constraint("Parallel", 4, 6))
sketch19.addConstraint(Sketcher.Constraint("Parallel", 5, 11))
sketch19.addConstraint(Sketcher.Constraint("Parallel", 6, 13))
sketch19.addConstraint(Sketcher.Constraint("Vertical", 3, 2, 4, 2))
sketch19.addConstraint(Sketcher.Constraint("Vertical", 2, 2, 5, 2))
sketch19.addConstraint(Sketcher.Constraint("Vertical", 1, 2, 6, 2))
sketch19.addConstraint(Sketcher.Constraint("Vertical", 0, 2, 7, 2))
sketch19.addConstraint(Sketcher.Constraint("Vertical", 9, 2, 14, 2))
sketch19.addConstraint(Sketcher.Constraint("Vertical", 8, 2, 15, 2))
sketch19.addConstraint(Sketcher.Constraint("Equal", 11, 13))
sketch19.addConstraint(Sketcher.Constraint("DistanceY", -1, 1, 0, 2, Q("81 mm")))
sketch19.addConstraint(Sketcher.Constraint("DistanceY", 6, 2, -1, 1, Q("6 mm")))
sketch19.addConstraint(Sketcher.Constraint("DistanceX", 5, 2, 13, 2, Q("7.904002 mm")))
sketch19.addConstraint(Sketcher.Constraint("DistanceX", 1, 1, 1, 2, Q("6.992081 mm")))
sketch19.addConstraint(Sketcher.Constraint("DistanceY", -1, 1, 2, 2, Q("40.267699 mm")))
sketch19.addConstraint(Sketcher.Constraint("DistanceX", 2, 2, 8, 2, Q("90.413601 mm")))
sketch19.addConstraint(Sketcher.Constraint("DistanceX", 12, 2, 14, 2, Q("93.254598 mm")))
sketch19.addConstraint(Sketcher.Constraint("Distance", 0, Q("98.804911 mm")))
sketch19.addConstraint(Sketcher.Constraint("Distance", 8, Q("94.296152 mm")))
sketch19.addConstraint(Sketcher.Constraint("Distance", 12, Q("95.292468 mm")))
sketch19.addConstraint(Sketcher.Constraint("DistanceY", -1, 1, 10, 2, Q("38.04933 mm")))
pocket16 = body.newObject("PartDesign::Pocket", "Pocket015")
pocket16.Profile = sketch19
pocket16.Length = 4

doc.recompute()
